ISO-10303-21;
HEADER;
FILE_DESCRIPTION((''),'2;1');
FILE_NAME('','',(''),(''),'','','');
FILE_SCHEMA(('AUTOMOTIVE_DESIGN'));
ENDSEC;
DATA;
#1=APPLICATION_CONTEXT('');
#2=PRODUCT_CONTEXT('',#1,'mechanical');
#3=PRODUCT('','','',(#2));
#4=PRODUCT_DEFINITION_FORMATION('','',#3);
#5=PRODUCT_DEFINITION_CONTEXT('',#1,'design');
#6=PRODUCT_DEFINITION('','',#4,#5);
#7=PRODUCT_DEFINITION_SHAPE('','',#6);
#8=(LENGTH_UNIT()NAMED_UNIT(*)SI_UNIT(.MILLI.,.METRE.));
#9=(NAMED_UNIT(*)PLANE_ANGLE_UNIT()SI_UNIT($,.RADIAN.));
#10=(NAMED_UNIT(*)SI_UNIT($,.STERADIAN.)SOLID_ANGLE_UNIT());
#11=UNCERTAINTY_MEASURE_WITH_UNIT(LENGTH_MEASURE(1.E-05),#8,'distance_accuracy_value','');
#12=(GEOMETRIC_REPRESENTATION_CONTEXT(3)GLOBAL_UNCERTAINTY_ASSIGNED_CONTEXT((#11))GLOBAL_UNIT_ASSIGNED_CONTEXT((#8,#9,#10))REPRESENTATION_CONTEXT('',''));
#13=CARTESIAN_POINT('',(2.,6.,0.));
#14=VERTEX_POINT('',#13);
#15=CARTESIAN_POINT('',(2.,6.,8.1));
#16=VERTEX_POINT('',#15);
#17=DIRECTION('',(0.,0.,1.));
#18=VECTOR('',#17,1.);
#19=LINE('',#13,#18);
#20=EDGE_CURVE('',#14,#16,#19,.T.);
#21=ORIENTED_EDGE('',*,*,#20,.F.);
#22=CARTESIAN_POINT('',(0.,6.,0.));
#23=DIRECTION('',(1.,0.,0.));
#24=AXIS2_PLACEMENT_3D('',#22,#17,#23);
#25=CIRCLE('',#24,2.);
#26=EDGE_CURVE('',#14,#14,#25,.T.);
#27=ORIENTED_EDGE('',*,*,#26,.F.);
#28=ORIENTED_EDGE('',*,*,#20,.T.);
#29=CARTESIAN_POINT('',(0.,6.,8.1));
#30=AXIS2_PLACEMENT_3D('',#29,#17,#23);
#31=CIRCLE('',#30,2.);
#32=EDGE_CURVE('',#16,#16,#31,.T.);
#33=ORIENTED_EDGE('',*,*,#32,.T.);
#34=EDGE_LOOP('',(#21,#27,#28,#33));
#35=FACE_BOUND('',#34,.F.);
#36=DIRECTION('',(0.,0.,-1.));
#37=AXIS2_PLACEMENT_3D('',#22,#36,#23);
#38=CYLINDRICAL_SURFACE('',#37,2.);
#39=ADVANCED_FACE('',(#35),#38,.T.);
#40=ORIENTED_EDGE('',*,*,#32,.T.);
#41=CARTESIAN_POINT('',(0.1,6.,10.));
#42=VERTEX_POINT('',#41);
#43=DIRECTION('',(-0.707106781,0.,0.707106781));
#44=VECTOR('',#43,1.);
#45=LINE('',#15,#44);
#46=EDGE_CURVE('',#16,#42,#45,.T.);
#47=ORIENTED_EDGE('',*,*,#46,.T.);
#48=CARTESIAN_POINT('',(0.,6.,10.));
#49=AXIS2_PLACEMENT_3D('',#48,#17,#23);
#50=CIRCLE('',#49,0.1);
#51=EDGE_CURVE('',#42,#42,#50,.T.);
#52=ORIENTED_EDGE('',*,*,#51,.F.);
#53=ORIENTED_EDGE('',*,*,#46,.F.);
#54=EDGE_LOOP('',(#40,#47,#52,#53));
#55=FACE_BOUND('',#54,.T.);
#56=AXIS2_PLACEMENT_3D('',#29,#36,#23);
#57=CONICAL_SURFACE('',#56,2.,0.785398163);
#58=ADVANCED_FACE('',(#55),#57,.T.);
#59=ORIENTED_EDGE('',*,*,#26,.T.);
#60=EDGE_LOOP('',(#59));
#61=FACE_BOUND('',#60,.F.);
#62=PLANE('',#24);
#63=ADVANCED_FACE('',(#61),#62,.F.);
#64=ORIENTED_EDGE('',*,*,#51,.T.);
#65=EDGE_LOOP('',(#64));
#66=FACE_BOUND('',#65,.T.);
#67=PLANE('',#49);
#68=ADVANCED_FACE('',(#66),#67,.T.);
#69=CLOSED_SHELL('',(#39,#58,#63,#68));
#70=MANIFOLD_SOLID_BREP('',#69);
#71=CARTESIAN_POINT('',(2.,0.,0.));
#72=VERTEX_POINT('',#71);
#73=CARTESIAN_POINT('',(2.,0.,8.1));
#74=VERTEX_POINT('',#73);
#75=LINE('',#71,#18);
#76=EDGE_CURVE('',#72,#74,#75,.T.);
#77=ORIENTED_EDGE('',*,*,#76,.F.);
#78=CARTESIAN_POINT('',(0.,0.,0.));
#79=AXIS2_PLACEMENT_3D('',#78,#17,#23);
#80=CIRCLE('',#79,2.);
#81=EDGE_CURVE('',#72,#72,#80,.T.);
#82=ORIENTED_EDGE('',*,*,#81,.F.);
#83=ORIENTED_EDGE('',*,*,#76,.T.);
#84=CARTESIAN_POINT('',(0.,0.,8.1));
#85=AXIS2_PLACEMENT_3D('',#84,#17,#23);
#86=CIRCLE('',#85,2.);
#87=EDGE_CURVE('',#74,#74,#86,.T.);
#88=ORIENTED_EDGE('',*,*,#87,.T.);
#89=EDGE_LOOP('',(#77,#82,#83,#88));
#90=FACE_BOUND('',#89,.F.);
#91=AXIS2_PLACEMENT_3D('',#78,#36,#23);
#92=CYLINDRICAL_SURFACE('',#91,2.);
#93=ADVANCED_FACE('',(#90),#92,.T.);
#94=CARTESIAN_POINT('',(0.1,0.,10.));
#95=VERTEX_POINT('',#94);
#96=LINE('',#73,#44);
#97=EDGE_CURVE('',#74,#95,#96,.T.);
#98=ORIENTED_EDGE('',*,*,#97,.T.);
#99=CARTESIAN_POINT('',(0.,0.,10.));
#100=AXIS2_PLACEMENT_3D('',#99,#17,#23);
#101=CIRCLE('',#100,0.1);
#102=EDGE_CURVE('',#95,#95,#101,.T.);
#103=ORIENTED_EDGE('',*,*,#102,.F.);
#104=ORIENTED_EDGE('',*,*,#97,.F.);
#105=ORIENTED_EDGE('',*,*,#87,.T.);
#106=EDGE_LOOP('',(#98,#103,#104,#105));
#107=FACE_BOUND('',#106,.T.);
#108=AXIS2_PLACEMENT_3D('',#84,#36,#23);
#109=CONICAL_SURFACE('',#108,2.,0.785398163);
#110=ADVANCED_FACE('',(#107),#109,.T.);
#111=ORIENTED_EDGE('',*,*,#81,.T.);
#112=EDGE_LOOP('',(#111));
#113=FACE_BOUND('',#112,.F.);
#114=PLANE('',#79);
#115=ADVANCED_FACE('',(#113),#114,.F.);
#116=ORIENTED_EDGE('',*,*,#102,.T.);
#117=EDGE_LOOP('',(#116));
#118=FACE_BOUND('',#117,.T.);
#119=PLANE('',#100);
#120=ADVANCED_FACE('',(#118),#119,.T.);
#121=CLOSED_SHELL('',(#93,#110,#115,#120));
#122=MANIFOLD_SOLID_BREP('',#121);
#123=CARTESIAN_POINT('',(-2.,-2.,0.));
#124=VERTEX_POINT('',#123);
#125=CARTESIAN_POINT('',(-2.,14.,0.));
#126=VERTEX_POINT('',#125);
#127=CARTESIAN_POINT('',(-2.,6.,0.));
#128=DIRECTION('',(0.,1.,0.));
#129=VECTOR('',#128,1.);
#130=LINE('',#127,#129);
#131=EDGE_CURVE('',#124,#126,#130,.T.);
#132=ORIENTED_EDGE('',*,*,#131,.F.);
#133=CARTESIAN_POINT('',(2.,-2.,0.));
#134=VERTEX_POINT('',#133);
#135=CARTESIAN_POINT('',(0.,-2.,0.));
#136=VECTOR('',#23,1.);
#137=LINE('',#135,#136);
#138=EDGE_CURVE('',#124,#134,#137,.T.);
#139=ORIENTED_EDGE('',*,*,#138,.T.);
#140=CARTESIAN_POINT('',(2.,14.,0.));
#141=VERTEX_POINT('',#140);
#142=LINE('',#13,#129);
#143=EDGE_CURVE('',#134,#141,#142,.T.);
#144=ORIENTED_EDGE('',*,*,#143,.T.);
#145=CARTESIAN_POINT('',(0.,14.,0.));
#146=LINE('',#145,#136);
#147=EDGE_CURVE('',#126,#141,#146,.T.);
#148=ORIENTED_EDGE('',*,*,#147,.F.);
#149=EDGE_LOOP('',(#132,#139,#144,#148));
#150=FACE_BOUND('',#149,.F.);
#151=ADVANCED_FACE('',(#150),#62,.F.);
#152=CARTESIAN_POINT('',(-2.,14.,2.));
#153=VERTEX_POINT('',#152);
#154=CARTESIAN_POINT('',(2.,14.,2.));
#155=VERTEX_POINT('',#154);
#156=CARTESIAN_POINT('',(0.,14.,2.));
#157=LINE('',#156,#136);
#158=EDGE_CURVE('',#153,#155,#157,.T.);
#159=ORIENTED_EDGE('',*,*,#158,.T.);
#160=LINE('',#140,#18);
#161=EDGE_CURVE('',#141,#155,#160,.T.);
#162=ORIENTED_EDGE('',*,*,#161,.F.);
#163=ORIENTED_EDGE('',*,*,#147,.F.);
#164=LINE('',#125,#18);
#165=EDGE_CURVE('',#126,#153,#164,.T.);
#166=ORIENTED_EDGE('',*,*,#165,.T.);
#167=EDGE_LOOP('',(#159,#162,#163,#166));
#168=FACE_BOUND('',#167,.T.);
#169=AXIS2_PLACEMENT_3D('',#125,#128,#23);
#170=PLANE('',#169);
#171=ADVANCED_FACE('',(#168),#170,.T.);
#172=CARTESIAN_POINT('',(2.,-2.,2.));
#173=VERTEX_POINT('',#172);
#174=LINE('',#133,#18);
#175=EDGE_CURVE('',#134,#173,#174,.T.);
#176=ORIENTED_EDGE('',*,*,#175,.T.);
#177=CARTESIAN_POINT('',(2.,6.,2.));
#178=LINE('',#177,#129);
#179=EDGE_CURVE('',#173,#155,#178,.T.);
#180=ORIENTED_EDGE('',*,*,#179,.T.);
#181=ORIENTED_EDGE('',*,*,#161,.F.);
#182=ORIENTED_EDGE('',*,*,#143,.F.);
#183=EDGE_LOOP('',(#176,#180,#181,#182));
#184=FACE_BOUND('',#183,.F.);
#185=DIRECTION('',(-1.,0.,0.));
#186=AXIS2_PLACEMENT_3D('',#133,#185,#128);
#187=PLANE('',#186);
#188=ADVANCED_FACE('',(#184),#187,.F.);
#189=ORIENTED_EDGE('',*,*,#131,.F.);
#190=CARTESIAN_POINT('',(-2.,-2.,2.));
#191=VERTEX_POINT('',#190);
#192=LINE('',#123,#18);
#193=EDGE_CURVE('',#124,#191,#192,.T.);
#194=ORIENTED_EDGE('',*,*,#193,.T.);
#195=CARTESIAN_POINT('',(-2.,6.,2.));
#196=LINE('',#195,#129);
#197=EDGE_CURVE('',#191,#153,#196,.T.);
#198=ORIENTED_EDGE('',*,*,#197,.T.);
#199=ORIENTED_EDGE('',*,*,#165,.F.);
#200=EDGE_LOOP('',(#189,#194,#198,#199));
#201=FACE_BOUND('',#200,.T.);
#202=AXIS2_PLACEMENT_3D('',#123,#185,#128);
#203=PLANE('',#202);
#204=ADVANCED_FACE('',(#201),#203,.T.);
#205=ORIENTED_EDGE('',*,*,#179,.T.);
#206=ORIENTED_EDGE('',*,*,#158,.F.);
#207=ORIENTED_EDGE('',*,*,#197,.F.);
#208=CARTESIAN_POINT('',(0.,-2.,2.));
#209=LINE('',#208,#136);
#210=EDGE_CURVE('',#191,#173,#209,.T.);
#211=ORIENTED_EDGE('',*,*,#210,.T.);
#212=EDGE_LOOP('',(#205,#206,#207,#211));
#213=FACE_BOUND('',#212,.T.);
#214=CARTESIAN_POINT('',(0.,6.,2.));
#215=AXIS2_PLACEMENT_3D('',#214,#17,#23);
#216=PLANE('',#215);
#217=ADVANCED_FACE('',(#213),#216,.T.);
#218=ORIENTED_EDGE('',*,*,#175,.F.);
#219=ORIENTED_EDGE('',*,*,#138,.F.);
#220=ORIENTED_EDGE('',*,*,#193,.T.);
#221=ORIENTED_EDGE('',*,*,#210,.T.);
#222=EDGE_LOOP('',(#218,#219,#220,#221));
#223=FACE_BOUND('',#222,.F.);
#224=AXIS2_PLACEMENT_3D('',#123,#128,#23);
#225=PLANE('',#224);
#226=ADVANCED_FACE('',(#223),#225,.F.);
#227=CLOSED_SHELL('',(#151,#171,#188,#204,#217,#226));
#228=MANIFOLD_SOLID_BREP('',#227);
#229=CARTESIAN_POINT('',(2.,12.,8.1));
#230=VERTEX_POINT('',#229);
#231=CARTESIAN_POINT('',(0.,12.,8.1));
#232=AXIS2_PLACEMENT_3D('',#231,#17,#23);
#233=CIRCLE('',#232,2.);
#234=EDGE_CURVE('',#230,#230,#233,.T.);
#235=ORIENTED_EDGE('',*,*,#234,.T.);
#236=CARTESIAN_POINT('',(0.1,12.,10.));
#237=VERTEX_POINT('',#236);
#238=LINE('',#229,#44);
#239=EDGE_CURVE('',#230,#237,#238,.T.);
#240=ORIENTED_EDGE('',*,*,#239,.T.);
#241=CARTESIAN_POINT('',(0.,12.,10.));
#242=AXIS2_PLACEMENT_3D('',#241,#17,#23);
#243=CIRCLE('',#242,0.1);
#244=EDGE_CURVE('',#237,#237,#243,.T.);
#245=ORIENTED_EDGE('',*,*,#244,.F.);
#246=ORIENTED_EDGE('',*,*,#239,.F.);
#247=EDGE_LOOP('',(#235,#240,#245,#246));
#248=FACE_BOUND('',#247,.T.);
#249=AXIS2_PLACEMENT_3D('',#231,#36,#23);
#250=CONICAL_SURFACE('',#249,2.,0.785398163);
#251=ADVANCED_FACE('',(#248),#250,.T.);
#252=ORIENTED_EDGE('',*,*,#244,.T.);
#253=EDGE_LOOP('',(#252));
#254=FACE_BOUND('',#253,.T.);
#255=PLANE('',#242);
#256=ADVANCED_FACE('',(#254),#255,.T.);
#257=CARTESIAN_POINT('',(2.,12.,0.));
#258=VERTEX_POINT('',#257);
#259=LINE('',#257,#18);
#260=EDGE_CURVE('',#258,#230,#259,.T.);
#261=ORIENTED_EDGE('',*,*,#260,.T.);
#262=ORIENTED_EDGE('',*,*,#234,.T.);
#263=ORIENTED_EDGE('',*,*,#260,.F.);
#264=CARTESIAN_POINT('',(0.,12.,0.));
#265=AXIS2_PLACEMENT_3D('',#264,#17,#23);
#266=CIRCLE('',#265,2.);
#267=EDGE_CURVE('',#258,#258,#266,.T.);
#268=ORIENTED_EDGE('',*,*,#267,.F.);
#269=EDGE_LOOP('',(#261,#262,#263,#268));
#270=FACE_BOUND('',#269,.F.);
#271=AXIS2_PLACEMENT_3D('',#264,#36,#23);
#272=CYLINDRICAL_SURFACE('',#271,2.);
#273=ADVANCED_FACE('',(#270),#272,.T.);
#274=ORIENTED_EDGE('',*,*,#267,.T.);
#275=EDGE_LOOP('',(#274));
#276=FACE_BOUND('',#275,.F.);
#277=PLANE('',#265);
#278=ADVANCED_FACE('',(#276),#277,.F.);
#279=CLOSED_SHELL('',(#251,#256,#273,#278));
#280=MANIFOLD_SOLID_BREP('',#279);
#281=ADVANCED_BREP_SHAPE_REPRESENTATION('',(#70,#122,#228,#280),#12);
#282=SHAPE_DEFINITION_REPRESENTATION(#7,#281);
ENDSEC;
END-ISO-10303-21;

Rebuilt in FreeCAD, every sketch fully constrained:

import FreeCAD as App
import Part
import Sketcher
from FreeCAD import Vector


def edges_at(feature, points):
    """Names of the edges that pass closest to the given points."""
    edges = feature.Shape.Edges
    near = lambda p: min(range(len(edges)), key=lambda i: edges[i].distToShape(Part.Vertex(*p))[0])
    return sorted({f"Edge{near(p) + 1}" for p in points})

doc = App.newDocument("Part")
params = doc.addObject("Spreadsheet::Sheet", "Params")
for row, (alias, value) in enumerate([
    ("sketch1_diameter", "4 mm"),
    ("pad1_length", "10 mm"),
    ("chamfer_size", "1.9 mm"),
    ("sketch2_diameter", "4 mm"),
    ("pad2_length", "10 mm"),
    ("chamfer2_size", "1.9 mm"),
    ("sketch3_diameter", "4 mm"),
    ("pad3_length", "10 mm"),
    ("chamfer3_size", "1.9 mm"),
    ("sketch4_width", "4 mm"),
    ("sketch4_height", "16 mm"),
    ("pad4_length", "2 mm"),
], start=1):
    params.set(f"A{row}", alias)
    params.set(f"B{row}", "=" + value)
    params.setAlias(f"B{row}", alias)

body = doc.addObject("PartDesign::Body", "Body")

# Sketch on XY plane
sketch1 = body.newObject("Sketcher::SketchObject", "Sketch")
sketch1.AttachmentSupport = (doc.getObject("XY_Plane"), [""])
sketch1.MapMode = "FlatFace"
sketch1.addGeometry(Part.Circle(Vector(0, 0, 0), Vector(0, 0, 1), 2), False)
sketch1.addConstraint([
    Sketcher.Constraint("Coincident", 0, 3, -1, 1),
    Sketcher.Constraint("Diameter", 0, 4.0),
])
sketch1.setExpression("Constraints[1]", "Params.sketch1_diameter")
pad1 = body.newObject("PartDesign::Pad", "Pad")
pad1.Profile = sketch1
pad1.setExpression("Length", "Params.pad1_length")
doc.recompute()

chamfer = body.newObject("PartDesign::Chamfer", "Chamfer")
chamfer.Base = (pad1, edges_at(pad1, [(-2, 0, 10)]))
chamfer.setExpression("Size", "Params.chamfer_size")
body2 = doc.addObject("PartDesign::Body", "Body001")

# Sketch on XY plane
sketch2 = body2.newObject("Sketcher::SketchObject", "Sketch001")
sketch2.AttachmentSupport = (doc.getObject("XY_Plane001"), [""])
sketch2.MapMode = "FlatFace"
sketch2.addGeometry(Part.Circle(Vector(0, 0, 0), Vector(0, 0, 1), 2), False)
sketch2.addConstraint([
    Sketcher.Constraint("Coincident", 0, 3, -1, 1),
    Sketcher.Constraint("Diameter", 0, 4.0),
])
sketch2.setExpression("Constraints[1]", "Params.sketch2_diameter")
pad2 = body2.newObject("PartDesign::Pad", "Pad001")
pad2.Profile = sketch2
pad2.setExpression("Length", "Params.pad2_length")
doc.recompute()

chamfer2 = body2.newObject("PartDesign::Chamfer", "Chamfer001")
chamfer2.Base = (pad2, edges_at(pad2, [(-2, 0, 10)]))
chamfer2.setExpression("Size", "Params.chamfer2_size")
body3 = doc.addObject("PartDesign::Body", "Body002")
doc.recompute()

body2.Placement = App.Placement(Vector(0, 6, 0), App.Rotation(Vector(0, 0, 1), 0))
boolean = body3.newObject("PartDesign::Boolean", "Boolean")
boolean.Type = "Fuse"
boolean.addObjects([body2])
body4 = doc.addObject("PartDesign::Body", "Body003")

# Sketch on XY plane
sketch3 = body4.newObject("Sketcher::SketchObject", "Sketch002")
sketch3.AttachmentSupport = (doc.getObject("XY_Plane003"), [""])
sketch3.MapMode = "FlatFace"
sketch3.addGeometry(Part.Circle(Vector(0, 0, 0), Vector(0, 0, 1), 2), False)
sketch3.addConstraint([
    Sketcher.Constraint("Coincident", 0, 3, -1, 1),
    Sketcher.Constraint("Diameter", 0, 4.0),
])
sketch3.setExpression("Constraints[1]", "Params.sketch3_diameter")
pad3 = body4.newObject("PartDesign::Pad", "Pad002")
pad3.Profile = sketch3
pad3.setExpression("Length", "Params.pad3_length")
doc.recompute()

chamfer3 = body4.newObject("PartDesign::Chamfer", "Chamfer002")
chamfer3.Base = (pad3, edges_at(pad3, [(-2, 0, 10)]))
chamfer3.setExpression("Size", "Params.chamfer3_size")
body5 = doc.addObject("PartDesign::Body", "Body004")
doc.recompute()

body4.Placement = App.Placement(Vector(0, 12, 0), App.Rotation(Vector(0, 0, 1), 0))
boolean2 = body5.newObject("PartDesign::Boolean", "Boolean001")
boolean2.Type = "Fuse"
boolean2.addObjects([body4])
body6 = doc.addObject("PartDesign::Body", "Body005")

# Sketch on XY plane
sketch4 = body6.newObject("Sketcher::SketchObject", "Sketch003")
sketch4.AttachmentSupport = (doc.getObject("XY_Plane005"), [""])
sketch4.MapMode = "FlatFace"
sketch4.addGeometry([
    Part.LineSegment(Vector(-2, 14, 0), Vector(-2, -2, 0)),
    Part.LineSegment(Vector(-2, -2, 0), Vector(2, -2, 0)),
    Part.LineSegment(Vector(2, -2, 0), Vector(2, 14, 0)),
    Part.LineSegment(Vector(2, 14, 0), Vector(-2, 14, 0)),
], False)
sketch4.addConstraint([
    Sketcher.Constraint("Coincident", 0, 2, 1, 1),
    Sketcher.Constraint("Coincident", 1, 2, 2, 1),
    Sketcher.Constraint("Coincident", 2, 2, 3, 1),
    Sketcher.Constraint("Coincident", 3, 2, 0, 1),
    Sketcher.Constraint("Vertical", 0),
    Sketcher.Constraint("Horizontal", 1),
    Sketcher.Constraint("Vertical", 2),
    Sketcher.Constraint("Horizontal", 3),
    Sketcher.Constraint("DistanceX", 1, 1, 1, 2, 4.0),
    Sketcher.Constraint("DistanceY", 0, 2, 0, 1, 16.0),
    Sketcher.Constraint("DistanceX", 0, 2, -1, 1, 2.0),
    Sketcher.Constraint("DistanceY", 0, 2, -1, 1, 2.0),
])
sketch4.setExpression("Constraints[8]", "Params.sketch4_width")
sketch4.setExpression("Constraints[9]", "Params.sketch4_height")
pad4 = body6.newObject("PartDesign::Pad", "Pad003")
pad4.Profile = sketch4
pad4.setExpression("Length", "Params.pad4_length")

doc.recompute()
